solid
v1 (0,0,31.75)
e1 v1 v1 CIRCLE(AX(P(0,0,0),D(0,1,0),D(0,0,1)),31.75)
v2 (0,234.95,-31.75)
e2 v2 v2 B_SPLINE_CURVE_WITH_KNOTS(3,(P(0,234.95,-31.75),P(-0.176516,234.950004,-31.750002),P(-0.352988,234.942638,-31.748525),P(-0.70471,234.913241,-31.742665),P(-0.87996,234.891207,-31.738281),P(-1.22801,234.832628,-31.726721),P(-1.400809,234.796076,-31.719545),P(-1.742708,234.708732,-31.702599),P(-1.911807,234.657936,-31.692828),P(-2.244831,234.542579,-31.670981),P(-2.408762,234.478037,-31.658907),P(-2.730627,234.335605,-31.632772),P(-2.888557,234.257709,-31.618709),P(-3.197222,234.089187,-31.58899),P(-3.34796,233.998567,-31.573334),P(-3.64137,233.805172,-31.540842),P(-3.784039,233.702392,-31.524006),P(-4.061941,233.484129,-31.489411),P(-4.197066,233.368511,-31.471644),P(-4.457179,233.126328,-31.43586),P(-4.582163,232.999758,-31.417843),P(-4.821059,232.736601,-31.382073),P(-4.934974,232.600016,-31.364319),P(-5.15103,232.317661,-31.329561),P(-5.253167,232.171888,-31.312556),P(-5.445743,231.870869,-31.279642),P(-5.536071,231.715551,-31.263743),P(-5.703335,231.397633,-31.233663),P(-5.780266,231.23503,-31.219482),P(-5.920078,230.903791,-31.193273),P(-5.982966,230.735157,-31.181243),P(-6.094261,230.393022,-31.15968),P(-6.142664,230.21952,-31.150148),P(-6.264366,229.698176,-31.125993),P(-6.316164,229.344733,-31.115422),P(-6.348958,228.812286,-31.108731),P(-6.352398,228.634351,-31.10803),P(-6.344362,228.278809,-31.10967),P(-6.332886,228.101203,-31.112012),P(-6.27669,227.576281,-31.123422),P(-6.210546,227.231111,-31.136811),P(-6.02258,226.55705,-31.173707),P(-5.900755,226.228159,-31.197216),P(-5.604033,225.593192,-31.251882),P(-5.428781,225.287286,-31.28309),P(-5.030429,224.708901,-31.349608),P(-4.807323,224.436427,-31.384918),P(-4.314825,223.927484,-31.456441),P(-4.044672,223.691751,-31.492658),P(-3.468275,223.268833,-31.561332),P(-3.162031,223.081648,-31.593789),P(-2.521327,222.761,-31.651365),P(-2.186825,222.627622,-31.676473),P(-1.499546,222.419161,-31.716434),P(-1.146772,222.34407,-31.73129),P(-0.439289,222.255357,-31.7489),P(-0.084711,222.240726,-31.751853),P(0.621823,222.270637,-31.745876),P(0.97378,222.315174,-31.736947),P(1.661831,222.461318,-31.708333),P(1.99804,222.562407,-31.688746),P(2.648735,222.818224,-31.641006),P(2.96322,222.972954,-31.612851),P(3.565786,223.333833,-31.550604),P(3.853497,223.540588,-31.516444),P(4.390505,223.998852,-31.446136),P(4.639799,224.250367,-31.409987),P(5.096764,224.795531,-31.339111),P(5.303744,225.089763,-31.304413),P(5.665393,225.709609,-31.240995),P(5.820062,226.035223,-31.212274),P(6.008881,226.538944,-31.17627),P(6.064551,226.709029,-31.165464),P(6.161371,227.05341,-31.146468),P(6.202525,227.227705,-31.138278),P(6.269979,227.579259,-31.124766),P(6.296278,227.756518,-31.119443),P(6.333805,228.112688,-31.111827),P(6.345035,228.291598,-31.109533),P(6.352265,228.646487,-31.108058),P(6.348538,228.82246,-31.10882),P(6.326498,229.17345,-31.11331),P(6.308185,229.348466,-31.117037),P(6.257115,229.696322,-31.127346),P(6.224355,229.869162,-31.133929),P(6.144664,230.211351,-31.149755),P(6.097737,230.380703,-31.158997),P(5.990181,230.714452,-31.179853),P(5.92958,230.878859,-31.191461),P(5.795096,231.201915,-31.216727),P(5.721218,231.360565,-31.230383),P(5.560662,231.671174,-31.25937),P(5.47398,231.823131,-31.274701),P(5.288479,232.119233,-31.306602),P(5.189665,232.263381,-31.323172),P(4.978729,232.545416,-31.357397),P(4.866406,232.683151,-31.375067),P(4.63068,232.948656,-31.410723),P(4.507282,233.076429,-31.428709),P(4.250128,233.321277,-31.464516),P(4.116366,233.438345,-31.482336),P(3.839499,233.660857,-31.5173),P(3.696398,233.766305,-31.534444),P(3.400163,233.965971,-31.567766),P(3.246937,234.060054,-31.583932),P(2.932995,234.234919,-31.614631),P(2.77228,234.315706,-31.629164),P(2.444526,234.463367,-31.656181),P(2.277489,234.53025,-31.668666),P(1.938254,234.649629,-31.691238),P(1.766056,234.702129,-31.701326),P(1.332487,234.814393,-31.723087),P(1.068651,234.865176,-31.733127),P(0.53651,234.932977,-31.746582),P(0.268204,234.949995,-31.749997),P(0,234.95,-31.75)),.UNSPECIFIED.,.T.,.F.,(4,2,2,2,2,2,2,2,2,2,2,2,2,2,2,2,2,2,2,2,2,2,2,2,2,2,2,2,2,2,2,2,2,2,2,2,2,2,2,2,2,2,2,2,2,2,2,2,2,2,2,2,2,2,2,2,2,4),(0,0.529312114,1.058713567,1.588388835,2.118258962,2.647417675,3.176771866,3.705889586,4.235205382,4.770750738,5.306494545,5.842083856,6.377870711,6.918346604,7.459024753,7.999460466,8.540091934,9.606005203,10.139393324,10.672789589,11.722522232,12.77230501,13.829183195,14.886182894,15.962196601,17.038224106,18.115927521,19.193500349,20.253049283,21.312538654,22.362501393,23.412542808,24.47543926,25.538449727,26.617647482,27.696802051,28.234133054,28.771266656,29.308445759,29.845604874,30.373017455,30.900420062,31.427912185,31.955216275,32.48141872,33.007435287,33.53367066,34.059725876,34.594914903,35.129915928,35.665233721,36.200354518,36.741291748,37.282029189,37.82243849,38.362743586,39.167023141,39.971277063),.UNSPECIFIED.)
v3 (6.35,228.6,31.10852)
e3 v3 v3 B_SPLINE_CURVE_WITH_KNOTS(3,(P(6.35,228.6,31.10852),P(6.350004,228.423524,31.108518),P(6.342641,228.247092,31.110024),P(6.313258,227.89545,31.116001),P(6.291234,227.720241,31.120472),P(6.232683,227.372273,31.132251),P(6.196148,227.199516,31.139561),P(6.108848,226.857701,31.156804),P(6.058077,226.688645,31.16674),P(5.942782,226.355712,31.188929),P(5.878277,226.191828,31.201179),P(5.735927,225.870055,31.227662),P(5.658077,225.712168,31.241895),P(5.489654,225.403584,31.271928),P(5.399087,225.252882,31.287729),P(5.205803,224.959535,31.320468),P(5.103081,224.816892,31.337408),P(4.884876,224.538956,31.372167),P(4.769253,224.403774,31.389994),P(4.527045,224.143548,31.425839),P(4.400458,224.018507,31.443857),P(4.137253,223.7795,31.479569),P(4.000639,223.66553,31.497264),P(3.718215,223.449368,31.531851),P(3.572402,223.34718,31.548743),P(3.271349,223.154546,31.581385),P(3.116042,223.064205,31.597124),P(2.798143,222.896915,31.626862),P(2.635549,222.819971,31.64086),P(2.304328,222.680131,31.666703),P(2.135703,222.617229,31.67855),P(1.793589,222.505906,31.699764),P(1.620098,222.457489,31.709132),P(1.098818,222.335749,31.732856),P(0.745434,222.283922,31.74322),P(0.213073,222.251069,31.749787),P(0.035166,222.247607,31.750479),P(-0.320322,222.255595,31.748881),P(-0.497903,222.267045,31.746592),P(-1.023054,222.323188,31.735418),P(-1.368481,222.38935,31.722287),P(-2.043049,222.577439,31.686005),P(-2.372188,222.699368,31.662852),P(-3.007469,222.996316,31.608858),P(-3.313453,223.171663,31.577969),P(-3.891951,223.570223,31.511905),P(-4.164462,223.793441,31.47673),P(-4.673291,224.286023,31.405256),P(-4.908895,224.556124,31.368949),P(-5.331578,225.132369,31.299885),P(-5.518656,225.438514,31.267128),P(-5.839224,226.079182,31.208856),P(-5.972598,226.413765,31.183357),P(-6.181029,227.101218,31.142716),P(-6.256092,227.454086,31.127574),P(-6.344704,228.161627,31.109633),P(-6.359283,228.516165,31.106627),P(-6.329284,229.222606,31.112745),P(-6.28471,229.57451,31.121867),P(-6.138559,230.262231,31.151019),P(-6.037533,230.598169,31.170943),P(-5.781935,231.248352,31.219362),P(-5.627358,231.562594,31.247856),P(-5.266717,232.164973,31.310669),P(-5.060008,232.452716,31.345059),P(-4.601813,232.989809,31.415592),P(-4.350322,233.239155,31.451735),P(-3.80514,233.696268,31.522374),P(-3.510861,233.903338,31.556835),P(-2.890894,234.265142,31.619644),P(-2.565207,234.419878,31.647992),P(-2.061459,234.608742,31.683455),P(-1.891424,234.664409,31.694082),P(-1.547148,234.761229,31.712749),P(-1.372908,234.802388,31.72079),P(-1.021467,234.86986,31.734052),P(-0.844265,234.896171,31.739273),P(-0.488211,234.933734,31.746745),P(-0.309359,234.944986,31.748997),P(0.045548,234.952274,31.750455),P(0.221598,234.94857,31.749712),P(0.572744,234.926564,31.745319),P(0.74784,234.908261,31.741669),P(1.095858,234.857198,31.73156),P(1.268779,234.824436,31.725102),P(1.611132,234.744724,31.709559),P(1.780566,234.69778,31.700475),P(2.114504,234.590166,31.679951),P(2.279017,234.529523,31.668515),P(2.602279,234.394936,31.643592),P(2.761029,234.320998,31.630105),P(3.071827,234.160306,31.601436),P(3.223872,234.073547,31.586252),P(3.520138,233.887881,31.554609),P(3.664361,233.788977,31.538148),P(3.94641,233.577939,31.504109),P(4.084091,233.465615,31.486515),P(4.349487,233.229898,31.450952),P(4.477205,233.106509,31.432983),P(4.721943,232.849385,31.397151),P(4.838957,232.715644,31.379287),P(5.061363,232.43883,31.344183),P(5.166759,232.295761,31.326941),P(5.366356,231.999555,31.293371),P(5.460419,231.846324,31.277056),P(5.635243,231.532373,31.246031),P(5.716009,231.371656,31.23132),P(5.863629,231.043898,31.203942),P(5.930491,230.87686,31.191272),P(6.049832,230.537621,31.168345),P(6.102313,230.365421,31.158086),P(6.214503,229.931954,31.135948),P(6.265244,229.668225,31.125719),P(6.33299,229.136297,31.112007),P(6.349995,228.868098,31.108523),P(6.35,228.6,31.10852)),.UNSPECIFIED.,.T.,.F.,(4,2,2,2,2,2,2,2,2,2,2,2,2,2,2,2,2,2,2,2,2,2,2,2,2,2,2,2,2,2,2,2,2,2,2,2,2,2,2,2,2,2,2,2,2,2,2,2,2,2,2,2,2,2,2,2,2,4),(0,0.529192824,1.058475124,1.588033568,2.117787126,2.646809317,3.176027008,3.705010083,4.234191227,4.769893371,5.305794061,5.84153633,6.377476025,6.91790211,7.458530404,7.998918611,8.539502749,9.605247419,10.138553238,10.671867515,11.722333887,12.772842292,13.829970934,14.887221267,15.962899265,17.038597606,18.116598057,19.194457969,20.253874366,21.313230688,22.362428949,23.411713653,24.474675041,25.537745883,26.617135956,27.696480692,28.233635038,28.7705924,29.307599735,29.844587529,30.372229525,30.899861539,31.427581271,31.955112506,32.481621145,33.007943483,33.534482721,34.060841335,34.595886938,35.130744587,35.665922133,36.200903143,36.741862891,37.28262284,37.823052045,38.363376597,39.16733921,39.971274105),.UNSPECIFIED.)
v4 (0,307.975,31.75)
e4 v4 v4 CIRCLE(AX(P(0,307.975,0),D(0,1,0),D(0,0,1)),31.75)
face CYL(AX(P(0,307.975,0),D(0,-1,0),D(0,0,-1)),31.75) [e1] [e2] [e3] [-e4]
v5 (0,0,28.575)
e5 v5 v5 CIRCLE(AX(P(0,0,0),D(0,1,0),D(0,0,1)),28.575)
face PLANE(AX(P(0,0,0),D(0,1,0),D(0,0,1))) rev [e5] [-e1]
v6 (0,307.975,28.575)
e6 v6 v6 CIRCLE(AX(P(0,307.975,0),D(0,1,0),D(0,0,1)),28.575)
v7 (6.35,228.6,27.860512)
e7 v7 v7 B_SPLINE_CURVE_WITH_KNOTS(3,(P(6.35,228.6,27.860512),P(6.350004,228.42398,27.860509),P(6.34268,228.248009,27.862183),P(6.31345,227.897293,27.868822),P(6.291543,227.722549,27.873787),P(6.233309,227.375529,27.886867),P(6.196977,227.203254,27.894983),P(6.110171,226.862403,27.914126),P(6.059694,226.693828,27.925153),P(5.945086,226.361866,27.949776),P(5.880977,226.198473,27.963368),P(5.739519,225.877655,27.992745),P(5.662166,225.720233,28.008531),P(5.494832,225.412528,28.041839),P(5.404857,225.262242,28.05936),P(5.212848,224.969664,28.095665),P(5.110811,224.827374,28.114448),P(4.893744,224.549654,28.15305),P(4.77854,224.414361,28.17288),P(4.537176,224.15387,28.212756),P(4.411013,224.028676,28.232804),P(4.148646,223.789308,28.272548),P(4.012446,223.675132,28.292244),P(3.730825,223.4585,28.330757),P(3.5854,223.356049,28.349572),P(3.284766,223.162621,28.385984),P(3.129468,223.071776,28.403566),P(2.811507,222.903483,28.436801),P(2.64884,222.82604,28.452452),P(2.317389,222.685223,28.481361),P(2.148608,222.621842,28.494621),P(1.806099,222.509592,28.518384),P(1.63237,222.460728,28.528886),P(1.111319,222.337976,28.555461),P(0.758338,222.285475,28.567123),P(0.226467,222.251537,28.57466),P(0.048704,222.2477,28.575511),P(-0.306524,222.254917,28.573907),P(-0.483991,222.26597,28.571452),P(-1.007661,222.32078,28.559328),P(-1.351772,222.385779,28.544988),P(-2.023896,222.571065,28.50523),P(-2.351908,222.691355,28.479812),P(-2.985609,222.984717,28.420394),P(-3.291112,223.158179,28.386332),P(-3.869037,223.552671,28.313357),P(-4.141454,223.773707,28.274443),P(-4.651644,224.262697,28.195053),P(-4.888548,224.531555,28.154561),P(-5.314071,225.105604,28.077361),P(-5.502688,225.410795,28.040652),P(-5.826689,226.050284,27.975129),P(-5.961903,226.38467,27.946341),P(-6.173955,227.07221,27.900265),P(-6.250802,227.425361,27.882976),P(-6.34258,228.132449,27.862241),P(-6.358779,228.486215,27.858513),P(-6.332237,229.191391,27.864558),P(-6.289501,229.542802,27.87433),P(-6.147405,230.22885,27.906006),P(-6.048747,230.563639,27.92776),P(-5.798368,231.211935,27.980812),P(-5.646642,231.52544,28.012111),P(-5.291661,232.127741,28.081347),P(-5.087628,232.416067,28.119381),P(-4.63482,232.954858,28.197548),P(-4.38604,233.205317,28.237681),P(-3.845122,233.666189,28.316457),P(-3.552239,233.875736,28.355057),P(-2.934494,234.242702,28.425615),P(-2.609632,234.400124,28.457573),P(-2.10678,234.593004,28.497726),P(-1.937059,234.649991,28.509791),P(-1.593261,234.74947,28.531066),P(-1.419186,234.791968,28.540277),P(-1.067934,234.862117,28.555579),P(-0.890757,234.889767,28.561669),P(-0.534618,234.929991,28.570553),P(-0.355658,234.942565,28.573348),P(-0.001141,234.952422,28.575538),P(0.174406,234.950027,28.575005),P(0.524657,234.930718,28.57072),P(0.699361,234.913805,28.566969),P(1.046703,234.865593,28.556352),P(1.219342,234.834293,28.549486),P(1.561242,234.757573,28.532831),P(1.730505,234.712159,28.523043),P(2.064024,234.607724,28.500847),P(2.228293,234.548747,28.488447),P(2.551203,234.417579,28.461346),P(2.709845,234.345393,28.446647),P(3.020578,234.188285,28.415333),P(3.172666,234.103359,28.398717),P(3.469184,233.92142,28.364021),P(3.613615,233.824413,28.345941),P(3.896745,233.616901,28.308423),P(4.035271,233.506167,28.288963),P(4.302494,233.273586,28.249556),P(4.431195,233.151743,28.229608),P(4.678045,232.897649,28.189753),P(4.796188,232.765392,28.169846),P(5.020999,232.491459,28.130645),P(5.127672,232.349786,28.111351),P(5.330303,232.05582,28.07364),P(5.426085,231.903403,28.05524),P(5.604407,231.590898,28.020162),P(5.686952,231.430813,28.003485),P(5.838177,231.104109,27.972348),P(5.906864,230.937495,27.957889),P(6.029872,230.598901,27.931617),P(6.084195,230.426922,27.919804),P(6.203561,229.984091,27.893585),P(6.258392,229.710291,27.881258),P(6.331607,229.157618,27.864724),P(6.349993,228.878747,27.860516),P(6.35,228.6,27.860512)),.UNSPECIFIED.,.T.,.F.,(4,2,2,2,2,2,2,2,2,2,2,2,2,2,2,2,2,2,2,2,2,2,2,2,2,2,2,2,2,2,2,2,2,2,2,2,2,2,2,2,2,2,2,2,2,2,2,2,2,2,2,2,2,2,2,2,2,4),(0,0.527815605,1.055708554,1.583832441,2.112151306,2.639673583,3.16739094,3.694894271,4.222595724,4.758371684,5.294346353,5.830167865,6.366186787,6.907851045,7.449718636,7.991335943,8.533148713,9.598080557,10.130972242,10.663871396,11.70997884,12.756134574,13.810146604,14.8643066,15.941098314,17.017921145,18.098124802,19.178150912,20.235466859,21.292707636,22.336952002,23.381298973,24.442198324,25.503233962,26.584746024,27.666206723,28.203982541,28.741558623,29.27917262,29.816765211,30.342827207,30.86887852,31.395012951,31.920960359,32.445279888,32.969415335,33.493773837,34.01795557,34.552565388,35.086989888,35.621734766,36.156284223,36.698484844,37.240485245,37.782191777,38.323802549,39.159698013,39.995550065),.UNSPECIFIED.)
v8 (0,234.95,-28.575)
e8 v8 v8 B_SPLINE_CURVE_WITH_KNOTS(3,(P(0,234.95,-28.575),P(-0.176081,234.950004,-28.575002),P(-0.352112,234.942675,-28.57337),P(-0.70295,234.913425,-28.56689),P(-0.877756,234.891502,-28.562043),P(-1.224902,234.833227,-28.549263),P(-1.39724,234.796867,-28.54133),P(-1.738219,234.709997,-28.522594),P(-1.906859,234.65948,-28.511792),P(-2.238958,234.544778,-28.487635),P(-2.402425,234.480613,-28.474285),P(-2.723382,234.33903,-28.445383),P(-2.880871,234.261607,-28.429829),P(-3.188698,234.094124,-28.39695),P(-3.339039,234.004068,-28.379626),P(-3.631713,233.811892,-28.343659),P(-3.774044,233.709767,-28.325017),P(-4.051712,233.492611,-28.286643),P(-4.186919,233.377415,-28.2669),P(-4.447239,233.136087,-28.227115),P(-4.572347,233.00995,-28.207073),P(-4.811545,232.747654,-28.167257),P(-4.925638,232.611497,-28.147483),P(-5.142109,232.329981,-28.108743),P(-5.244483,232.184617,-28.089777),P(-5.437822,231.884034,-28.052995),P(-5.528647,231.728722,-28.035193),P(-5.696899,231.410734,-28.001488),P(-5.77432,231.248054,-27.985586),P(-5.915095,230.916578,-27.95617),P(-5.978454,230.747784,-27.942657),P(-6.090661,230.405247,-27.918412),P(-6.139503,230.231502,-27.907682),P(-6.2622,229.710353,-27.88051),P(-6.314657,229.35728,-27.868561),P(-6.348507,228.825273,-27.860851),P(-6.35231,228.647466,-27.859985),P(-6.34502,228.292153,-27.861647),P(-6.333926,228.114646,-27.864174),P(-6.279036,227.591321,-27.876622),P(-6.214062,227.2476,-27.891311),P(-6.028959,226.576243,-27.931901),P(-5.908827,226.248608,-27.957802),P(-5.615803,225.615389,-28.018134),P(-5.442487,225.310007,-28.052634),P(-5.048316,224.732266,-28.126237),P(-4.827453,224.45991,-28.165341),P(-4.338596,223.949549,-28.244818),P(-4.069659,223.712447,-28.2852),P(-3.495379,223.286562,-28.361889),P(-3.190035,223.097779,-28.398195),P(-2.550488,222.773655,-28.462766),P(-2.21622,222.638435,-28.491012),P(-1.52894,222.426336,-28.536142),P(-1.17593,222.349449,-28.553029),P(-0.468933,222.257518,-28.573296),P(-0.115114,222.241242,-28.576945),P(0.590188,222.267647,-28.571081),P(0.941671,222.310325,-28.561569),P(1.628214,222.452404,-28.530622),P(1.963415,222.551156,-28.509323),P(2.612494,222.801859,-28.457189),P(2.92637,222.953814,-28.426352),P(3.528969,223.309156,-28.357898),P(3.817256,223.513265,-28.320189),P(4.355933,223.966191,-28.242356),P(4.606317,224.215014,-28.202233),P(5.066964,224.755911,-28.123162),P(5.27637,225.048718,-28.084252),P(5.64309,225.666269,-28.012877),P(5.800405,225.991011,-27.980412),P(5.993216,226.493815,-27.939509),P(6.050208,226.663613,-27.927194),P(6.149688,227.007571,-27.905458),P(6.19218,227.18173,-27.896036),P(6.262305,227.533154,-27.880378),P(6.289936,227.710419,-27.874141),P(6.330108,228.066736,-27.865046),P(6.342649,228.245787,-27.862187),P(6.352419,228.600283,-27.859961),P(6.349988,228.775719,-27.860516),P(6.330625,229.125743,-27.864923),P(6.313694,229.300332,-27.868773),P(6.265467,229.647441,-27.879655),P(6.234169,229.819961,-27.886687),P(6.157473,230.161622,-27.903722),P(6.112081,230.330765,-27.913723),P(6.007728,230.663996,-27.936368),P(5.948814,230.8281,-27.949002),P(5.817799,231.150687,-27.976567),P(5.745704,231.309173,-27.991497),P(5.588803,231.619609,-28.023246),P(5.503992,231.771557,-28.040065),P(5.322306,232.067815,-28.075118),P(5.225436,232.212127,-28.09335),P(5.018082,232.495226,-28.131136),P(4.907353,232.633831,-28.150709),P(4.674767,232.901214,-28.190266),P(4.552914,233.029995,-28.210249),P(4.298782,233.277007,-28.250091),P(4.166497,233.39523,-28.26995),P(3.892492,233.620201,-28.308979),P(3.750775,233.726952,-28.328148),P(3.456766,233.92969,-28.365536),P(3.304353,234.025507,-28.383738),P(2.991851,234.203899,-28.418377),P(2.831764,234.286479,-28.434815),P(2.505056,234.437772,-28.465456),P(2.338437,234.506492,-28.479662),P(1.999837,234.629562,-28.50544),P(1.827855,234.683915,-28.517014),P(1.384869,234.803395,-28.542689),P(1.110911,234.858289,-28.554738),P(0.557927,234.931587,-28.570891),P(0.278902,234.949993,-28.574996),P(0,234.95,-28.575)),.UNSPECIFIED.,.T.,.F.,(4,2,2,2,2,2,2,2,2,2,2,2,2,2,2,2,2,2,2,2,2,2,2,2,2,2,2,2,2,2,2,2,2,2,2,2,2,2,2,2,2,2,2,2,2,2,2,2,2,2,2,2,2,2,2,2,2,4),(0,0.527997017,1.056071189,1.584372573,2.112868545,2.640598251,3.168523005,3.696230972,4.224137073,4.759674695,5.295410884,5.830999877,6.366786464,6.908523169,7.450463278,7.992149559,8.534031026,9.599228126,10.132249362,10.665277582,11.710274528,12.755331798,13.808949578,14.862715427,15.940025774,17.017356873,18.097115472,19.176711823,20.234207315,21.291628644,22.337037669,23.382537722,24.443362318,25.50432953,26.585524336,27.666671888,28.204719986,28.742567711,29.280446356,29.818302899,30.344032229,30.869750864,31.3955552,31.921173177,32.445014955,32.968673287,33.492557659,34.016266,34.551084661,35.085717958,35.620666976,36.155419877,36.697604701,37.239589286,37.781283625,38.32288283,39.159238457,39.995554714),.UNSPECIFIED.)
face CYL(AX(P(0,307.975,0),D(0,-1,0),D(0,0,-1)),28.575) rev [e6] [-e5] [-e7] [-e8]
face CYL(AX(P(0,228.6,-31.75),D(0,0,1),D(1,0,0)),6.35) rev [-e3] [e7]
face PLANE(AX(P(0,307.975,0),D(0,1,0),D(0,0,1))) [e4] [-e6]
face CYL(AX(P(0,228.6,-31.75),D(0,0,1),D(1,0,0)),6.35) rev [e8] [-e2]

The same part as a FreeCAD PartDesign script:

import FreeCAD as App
import Part
import Sketcher

V = App.Vector
Q = App.Units.Quantity

doc = App.newDocument("Part")
body = doc.addObject("PartDesign::Body", "Body")

sketch1 = body.newObject("Sketcher::SketchObject", "Sketch")
sketch1.AttachmentSupport = (doc.getObject("XZ_Plane"), [""])
sketch1.MapMode = "FlatFace"
sketch1.addGeometry([
    Part.Circle(V(0, 0, 0), V(0, 0, 1), 32),
    Part.Circle(V(0, 0, 0), V(0, 0, 1), 29),
], False)
sketch1.addConstraint([
    Sketcher.Constraint("Coincident", 0, 3, -1, 1),
    Sketcher.Constraint("Coincident", 1, 3, -1, 1),
    Sketcher.Constraint("Diameter", 0, Q("2.5 in")),
    Sketcher.Constraint("Diameter", 1, Q("2.25 in")),
])
pad1 = body.newObject("PartDesign::Pad", "Pad")
pad1.Profile = sketch1
pad1.Length = Q("12.125 in")
pad1.Reversed = True

sketch2 = body.newObject("Sketcher::SketchObject", "Sketch001")
sketch2.AttachmentSupport = (doc.getObject("XY_Plane"), [""])
sketch2.MapMode = "FlatFace"
sketch2.addGeometry(Part.Circle(V(0, 229, 0), V(0, 0, 1), 6), False)
sketch2.addConstraint([
    Sketcher.Constraint("PointOnObject", 0, 3, -2),
    Sketcher.Constraint("Diameter", 0, Q("0.5 in")),
    Sketcher.Constraint("DistanceY", -1, 1, 0, 3, Q("9 in")),
])
pocket1 = body.newObject("PartDesign::Pocket", "Pocket")
pocket1.Profile = sketch2
pocket1.Type = "ThroughAll"
pocket1.Midplane = True

doc.recompute()
